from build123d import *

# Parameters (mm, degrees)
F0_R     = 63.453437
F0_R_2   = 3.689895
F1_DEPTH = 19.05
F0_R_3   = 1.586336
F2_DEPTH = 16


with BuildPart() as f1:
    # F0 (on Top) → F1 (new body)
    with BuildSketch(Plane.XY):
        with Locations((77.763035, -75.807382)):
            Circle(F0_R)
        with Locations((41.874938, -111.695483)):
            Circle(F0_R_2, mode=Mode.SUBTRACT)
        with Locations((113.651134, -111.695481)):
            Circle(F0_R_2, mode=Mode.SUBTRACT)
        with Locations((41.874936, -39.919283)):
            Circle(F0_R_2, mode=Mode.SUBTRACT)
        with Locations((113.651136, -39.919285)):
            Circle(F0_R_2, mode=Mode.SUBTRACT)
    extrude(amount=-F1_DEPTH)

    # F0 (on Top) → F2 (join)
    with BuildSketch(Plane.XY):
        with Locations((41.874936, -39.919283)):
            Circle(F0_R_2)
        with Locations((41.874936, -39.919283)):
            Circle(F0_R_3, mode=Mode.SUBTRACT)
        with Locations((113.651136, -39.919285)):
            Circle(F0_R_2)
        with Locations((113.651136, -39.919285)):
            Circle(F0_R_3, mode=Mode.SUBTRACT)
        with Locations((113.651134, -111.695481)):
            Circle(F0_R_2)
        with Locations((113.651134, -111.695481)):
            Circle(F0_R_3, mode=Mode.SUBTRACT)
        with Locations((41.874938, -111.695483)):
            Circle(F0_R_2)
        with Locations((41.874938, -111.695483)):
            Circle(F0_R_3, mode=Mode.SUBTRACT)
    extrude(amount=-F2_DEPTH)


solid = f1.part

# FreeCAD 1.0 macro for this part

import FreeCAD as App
import Part
import Sketcher
from FreeCAD import Vector
Q = App.Units.Quantity

doc = App.newDocument("Part")
body = doc.addObject("PartDesign::Body", "Body")

sketch1 = body.newObject("Sketcher::SketchObject", "Sketch")
sketch1.AttachmentSupport = (doc.getObject("XY_Plane"), [""])
sketch1.MapMode = "FlatFace"
sketch1.addGeometry([
    Part.Circle(Vector(77.8, -75.8, 0), Vector(0, 0, 1), 63.5),
    Part.Circle(Vector(41.9, -111.7, 0), Vector(0, 0, 1), 3.7),
    Part.Circle(Vector(113.7, -111.7, 0), Vector(0, 0, 1), 3.7),
    Part.Circle(Vector(41.9, -39.9, 0), Vector(0, 0, 1), 3.7),
    Part.Circle(Vector(113.7, -39.9, 0), Vector(0, 0, 1), 3.7),
], False)
sketch1.addConstraint([
    Sketcher.Constraint("Equal", 1, 2),
    Sketcher.Constraint("Equal", 2, 3),
    Sketcher.Constraint("Equal", 3, 4),
    Sketcher.Constraint("Horizontal", 1, 3, 2, 3),
    Sketcher.Constraint("Vertical", 2, 3, 4, 3),
    Sketcher.Constraint("Diameter", 1, Q("7.37979 mm")),
    Sketcher.Constraint("Diameter", 0, Q("126.906874 mm")),
    Sketcher.Constraint("DistanceY", 1, 3, 0, 3, Q("35.888101 mm")),
    Sketcher.Constraint("DistanceX", 0, 3, 2, 3, Q("35.888099 mm")),
    Sketcher.Constraint("DistanceX", 3, 3, 0, 3, Q("35.888099 mm")),
    Sketcher.Constraint("DistanceY", 0, 3, 3, 3, Q("35.888099 mm")),
    Sketcher.Constraint("DistanceY", 2, 3, -1, 1, Q("111.695481 mm")),
    Sketcher.Constraint("DistanceX", -1, 1, 0, 3, Q("77.763035 mm")),
    Sketcher.Constraint("DistanceX", -1, 1, 1, 3, Q("41.874938 mm")),
    Sketcher.Constraint("DistanceY", 4, 3, -1, 1, Q("39.919285 mm")),
])
pad1 = body.newObject("PartDesign::Pad", "Pad")
pad1.Profile = sketch1
pad1.Length = 19.05
pad1.Reversed = True

sketch2 = body.newObject("Sketcher::SketchObject", "Sketch001")
sketch2.AttachmentSupport = (doc.getObject("XY_Plane"), [""])
sketch2.MapMode = "FlatFace"
sketch2.addGeometry([
    Part.Circle(Vector(41.9, -39.9, 0), Vector(0, 0, 1), 3.7),
    Part.Circle(Vector(41.9, -39.9, 0), Vector(0, 0, 1), 1.6),
    Part.Circle(Vector(113.7, -39.9, 0), Vector(0, 0, 1), 3.7),
    Part.Circle(Vector(113.7, -39.9, 0), Vector(0, 0, 1), 1.6),
    Part.Circle(Vector(113.7, -111.7, 0), Vector(0, 0, 1), 3.7),
    Part.Circle(Vector(113.7, -111.7, 0), Vector(0, 0, 1), 1.6),
    Part.Circle(Vector(41.9, -111.7, 0), Vector(0, 0, 1), 3.7),
    Part.Circle(Vector(41.9, -111.7, 0), Vector(0, 0, 1), 1.6),
], False)
sketch2.addConstraint([
    Sketcher.Constraint("Coincident", 1, 3, 0, 3),
    Sketcher.Constraint("Coincident", 3, 3, 2, 3),
    Sketcher.Constraint("Coincident", 5, 3, 4, 3),
    Sketcher.Constraint("Coincident", 7, 3, 6, 3),
    Sketcher.Constraint("Equal", 0, 2),
    Sketcher.Constraint("Equal", 1, 3),
    Sketcher.Constraint("Equal", 2, 4),
    Sketcher.Constraint("Equal", 3, 5),
    Sketcher.Constraint("Equal", 4, 6),
    Sketcher.Constraint("Equal", 5, 7),
    Sketcher.Constraint("Horizontal", 5, 3, 6, 3),
    Sketcher.Constraint("Vertical", 3, 3, 4, 3),
    Sketcher.Constraint("Diameter", 0, Q("7.37979 mm")),
    Sketcher.Constraint("Diameter", 1, Q("3.172672 mm")),
    Sketcher.Constraint("DistanceX", 0, 3, 2, 3, Q("71.7762 mm")),
    Sketcher.Constraint("DistanceY", 6, 3, 0, 3, Q("71.7762 mm")),
    Sketcher.Constraint("DistanceY", 4, 3, -1, 1, Q("111.695481 mm")),
    Sketcher.Constraint("DistanceX", -1, 1, 0, 3, Q("41.874936 mm")),
    Sketcher.Constraint("DistanceY", 2, 3, -1, 1, Q("39.919285 mm")),
    Sketcher.Constraint("DistanceX", -1, 1, 6, 3, Q("41.874938 mm")),
])
pad2 = body.newObject("PartDesign::Pad", "Pad001")
pad2.Profile = sketch2
pad2.Length = 16
pad2.Reversed = True

doc.recompute()
